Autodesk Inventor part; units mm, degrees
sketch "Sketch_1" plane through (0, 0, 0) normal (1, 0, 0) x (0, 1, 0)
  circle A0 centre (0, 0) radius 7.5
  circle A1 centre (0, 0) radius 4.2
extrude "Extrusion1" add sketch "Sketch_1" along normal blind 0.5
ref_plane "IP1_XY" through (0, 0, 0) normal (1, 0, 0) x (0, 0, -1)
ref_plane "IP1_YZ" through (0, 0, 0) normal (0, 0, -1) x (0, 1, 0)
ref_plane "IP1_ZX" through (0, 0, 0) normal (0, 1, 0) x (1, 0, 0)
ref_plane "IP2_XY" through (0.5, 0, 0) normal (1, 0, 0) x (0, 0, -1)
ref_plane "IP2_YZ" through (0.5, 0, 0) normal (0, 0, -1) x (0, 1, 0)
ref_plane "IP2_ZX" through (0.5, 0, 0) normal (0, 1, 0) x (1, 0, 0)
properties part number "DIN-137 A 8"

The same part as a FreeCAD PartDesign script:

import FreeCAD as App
import Part
import Sketcher
from FreeCAD import Vector
Q = App.Units.Quantity

doc = App.newDocument("Part")
body = doc.addObject("PartDesign::Body", "Body")

# Sketch on YZ plane
sketch1 = body.newObject("Sketcher::SketchObject", "Sketch")
sketch1.AttachmentSupport = (doc.getObject("YZ_Plane"), [""])
sketch1.MapMode = "FlatFace"
sketch1.addGeometry([
    Part.Circle(Vector(0, 0, 0), Vector(0, 0, 1), 7.5),
    Part.Circle(Vector(0, 0, 0), Vector(0, 0, 1), 4.2),
], False)
sketch1.addConstraint([
    Sketcher.Constraint("Coincident", 0, 3, -1, 1),
    Sketcher.Constraint("Coincident", 1, 3, -1, 1),
    Sketcher.Constraint("Diameter", 0, Q("15 mm")),
    Sketcher.Constraint("Diameter", 1, Q("8.4 mm")),
])
pad1 = body.newObject("PartDesign::Pad", "Pad")
pad1.Profile = sketch1
pad1.Length = 0.5

doc.recompute()
